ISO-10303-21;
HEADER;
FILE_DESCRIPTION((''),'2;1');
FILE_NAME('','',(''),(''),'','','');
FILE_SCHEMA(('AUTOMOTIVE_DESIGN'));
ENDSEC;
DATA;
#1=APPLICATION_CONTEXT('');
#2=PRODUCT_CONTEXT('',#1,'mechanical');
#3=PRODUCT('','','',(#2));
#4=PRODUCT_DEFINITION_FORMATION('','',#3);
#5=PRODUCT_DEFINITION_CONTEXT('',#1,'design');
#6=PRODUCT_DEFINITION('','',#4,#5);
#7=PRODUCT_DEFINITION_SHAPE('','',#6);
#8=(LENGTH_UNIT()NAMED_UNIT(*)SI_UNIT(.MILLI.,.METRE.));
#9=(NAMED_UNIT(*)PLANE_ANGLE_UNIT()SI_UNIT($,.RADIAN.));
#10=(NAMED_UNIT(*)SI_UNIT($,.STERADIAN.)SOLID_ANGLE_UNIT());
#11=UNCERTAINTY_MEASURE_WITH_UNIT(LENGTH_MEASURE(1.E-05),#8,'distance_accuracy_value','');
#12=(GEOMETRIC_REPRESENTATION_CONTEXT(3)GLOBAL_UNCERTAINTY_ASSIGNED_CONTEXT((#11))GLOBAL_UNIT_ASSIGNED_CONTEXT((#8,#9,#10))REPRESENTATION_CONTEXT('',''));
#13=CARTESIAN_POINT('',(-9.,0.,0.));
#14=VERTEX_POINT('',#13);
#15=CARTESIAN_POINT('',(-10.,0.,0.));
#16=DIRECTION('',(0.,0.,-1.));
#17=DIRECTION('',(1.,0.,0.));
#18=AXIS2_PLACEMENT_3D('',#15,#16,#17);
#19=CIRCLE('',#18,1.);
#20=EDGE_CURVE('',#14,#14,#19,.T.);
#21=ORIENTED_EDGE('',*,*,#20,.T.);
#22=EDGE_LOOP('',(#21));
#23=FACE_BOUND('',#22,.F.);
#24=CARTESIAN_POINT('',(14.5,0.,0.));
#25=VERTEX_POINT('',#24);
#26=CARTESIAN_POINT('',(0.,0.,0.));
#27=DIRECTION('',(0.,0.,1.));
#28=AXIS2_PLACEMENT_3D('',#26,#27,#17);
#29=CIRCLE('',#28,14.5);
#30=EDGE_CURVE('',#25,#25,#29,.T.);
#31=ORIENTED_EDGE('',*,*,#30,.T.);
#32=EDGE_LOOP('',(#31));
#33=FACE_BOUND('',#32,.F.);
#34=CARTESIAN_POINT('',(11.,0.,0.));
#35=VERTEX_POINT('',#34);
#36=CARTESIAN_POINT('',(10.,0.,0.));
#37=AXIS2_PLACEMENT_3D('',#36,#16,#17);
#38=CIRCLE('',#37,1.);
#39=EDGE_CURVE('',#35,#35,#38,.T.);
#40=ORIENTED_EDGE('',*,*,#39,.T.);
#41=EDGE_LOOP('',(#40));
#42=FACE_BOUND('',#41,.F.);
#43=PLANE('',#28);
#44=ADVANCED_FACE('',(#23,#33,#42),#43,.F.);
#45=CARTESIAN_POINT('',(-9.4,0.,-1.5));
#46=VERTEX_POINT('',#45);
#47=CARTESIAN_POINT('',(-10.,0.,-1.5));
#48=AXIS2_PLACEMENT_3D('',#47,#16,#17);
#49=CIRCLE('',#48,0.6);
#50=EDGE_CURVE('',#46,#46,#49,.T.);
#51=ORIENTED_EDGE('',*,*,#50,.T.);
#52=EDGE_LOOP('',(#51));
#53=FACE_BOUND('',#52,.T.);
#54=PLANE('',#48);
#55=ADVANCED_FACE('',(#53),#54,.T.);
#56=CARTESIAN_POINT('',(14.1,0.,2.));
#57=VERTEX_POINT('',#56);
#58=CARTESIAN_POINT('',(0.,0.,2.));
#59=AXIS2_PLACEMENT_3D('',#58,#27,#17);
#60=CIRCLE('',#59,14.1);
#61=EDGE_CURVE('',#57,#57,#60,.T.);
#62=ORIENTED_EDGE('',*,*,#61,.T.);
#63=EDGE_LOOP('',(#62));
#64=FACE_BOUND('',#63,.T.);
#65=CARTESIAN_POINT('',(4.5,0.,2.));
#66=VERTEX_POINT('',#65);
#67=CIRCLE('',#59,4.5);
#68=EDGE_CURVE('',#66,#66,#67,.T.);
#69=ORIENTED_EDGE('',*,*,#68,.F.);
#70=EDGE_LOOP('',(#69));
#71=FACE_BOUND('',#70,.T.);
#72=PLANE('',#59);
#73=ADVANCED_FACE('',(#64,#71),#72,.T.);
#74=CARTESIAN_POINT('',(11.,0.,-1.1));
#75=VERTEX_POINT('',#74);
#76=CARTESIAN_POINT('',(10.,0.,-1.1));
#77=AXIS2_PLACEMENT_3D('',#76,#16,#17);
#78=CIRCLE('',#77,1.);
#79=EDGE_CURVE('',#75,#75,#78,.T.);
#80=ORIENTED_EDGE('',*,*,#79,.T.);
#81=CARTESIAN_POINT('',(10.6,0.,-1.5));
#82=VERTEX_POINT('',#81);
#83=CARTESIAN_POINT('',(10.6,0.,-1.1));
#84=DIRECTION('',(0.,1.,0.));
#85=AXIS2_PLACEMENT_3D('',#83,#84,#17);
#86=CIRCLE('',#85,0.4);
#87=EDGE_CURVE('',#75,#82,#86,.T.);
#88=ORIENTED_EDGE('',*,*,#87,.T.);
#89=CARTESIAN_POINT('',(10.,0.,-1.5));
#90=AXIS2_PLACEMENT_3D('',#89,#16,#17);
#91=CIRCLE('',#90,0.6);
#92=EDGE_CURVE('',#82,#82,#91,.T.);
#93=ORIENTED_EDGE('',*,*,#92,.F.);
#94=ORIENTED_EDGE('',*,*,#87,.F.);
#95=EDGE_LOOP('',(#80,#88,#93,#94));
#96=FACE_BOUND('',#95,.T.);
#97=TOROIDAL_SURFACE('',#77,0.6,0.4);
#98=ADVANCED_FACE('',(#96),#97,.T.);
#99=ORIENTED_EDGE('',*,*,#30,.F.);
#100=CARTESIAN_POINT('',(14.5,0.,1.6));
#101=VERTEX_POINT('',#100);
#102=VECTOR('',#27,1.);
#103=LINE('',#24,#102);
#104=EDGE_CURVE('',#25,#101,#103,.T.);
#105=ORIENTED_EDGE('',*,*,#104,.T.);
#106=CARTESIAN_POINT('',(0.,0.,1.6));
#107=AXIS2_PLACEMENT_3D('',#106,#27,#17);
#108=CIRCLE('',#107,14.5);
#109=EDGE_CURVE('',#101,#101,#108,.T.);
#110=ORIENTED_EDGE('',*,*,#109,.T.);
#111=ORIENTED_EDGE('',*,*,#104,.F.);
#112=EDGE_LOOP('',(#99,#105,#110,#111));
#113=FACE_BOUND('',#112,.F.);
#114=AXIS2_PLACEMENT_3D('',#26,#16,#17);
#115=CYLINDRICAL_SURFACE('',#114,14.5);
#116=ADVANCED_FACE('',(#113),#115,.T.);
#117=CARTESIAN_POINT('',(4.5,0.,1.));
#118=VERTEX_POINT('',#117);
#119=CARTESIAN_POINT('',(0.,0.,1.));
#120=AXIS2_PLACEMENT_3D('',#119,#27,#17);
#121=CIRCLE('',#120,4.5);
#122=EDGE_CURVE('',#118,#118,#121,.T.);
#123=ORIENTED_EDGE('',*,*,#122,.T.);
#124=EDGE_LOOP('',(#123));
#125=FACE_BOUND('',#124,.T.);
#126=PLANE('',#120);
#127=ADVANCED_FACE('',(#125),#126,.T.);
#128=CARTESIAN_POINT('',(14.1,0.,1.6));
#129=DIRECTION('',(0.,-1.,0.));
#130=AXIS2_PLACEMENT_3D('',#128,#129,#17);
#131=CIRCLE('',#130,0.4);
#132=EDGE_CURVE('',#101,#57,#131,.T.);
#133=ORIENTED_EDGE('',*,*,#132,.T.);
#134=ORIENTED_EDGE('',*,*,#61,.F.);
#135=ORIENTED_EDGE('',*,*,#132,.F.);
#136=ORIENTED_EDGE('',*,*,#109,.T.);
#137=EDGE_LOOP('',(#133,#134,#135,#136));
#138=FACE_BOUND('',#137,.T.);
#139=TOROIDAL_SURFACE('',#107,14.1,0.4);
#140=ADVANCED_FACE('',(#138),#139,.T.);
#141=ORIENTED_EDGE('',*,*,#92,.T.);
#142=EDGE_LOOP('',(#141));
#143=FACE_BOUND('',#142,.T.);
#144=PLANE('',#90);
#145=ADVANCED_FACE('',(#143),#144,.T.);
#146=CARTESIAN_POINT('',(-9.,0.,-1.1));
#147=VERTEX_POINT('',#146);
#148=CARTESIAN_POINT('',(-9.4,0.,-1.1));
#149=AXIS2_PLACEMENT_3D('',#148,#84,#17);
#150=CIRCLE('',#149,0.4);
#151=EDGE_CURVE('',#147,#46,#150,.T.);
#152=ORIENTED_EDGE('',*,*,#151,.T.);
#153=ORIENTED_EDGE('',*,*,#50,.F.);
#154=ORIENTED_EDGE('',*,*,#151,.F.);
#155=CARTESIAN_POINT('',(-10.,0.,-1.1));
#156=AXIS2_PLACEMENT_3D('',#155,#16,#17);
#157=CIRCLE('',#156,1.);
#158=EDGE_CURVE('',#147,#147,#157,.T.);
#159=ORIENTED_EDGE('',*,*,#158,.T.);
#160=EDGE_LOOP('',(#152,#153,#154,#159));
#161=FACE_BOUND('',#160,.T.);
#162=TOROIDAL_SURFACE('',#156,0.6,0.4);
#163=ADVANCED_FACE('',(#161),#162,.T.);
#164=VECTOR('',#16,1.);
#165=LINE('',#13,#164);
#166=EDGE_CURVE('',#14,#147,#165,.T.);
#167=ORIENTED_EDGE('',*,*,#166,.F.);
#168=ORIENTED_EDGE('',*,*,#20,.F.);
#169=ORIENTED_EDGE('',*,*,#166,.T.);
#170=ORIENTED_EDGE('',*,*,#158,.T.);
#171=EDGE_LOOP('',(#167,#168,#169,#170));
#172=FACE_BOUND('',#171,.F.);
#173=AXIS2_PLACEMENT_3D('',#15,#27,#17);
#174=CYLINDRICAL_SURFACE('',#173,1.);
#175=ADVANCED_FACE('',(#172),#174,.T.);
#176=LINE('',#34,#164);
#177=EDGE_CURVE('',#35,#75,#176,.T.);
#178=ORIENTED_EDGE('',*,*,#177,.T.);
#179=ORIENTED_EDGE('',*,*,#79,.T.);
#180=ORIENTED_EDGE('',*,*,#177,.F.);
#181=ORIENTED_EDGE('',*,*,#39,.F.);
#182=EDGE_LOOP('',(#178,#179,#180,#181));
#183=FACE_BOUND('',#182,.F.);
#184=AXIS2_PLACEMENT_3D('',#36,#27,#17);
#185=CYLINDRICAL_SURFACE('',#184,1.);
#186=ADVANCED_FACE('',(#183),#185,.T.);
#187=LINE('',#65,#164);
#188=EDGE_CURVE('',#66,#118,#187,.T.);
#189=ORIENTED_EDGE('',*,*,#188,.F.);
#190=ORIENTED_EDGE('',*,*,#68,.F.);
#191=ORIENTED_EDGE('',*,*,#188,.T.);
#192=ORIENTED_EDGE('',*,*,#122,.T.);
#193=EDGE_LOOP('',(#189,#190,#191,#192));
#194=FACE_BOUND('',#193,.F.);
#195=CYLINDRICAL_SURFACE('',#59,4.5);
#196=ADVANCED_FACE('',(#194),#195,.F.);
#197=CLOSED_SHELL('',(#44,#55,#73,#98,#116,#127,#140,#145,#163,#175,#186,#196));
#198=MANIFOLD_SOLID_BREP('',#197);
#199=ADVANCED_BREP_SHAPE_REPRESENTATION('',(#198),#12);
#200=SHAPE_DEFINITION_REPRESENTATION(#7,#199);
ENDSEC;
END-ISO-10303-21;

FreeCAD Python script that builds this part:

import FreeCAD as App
import Part
import Sketcher
from FreeCAD import Vector


def edges_at(feature, points):
    """Names of the edges that pass closest to the given points."""
    edges = feature.Shape.Edges
    near = lambda p: min(range(len(edges)), key=lambda i: edges[i].distToShape(Part.Vertex(*p))[0])
    return sorted({f"Edge{near(p) + 1}" for p in points})

doc = App.newDocument("Part")
params = doc.addObject("Spreadsheet::Sheet", "Params")
for row, (alias, value) in enumerate([
    ("sketch1_diameter", "29 mm"),
    ("pad1_length", "2 mm"),
    ("fillet_radius", "0.4 mm"),
    ("sketch2_diameter", "2 mm"),
    ("pad2_length", "1.5 mm"),
    ("fillet2_radius", "0.4 mm"),
    ("sketch3_diameter", "9 mm"),
    ("pocket1_length", "1 mm"),
], start=1):
    params.set(f"A{row}", alias)
    params.set(f"B{row}", "=" + value)
    params.setAlias(f"B{row}", alias)

body = doc.addObject("PartDesign::Body", "Body")

# Sketch on XY plane
sketch1 = body.newObject("Sketcher::SketchObject", "Sketch")
sketch1.AttachmentSupport = (doc.getObject("XY_Plane"), [""])
sketch1.MapMode = "FlatFace"
sketch1.addGeometry(Part.Circle(Vector(0, 0, 0), Vector(0, 0, 1), 14), False)
sketch1.addConstraint([
    Sketcher.Constraint("Coincident", 0, 3, -1, 1),
    Sketcher.Constraint("Diameter", 0, 29.0),
])
sketch1.setExpression("Constraints[1]", "Params.sketch1_diameter")
pad1 = body.newObject("PartDesign::Pad", "Pad")
pad1.Profile = sketch1
pad1.setExpression("Length", "Params.pad1_length")
doc.recompute()

fillet = body.newObject("PartDesign::Fillet", "Fillet")
fillet.Base = (pad1, edges_at(pad1, [(-14.5, 0, 2)]))
fillet.setExpression("Radius", "Params.fillet_radius")

# Sketch on XY plane
sketch2 = body.newObject("Sketcher::SketchObject", "Sketch001")
sketch2.AttachmentSupport = (doc.getObject("XY_Plane"), [""])
sketch2.MapMode = "FlatFace"
sketch2.addGeometry([
    Part.Circle(Vector(-10, 0, 0), Vector(0, 0, 1), 1),
    Part.Circle(Vector(10, 0, 0), Vector(0, 0, 1), 1),
], False)
sketch2.addConstraint([
    Sketcher.Constraint("Equal", 0, 1),
    Sketcher.Constraint("Symmetric", 0, 3, 1, 3, -1, 1),
    Sketcher.Constraint("PointOnObject", 0, 3, -1),
    Sketcher.Constraint("Diameter", 0, 2.0),
    Sketcher.Constraint("DistanceX", 0, 3, -1, 1, 10.0),
])
sketch2.setExpression("Constraints[3]", "Params.sketch2_diameter")
pad2 = body.newObject("PartDesign::Pad", "Pad001")
pad2.Profile = sketch2
pad2.setExpression("Length", "Params.pad2_length")
pad2.Reversed = True
doc.recompute()

fillet2 = body.newObject("PartDesign::Fillet", "Fillet001")
fillet2.Base = (pad2, edges_at(pad2, [(-11, 0, -1.5), (9, 0, -1.5)]))
fillet2.setExpression("Radius", "Params.fillet2_radius")

# Sketch on XY plane
sketch3 = body.newObject("Sketcher::SketchObject", "Sketch002")
sketch3.AttachmentSupport = (doc.getObject("XY_Plane"), [""])
sketch3.MapMode = "FlatFace"
sketch3.AttachmentOffset = App.Placement(Vector(0, 0, 2), App.Rotation())
sketch3.addGeometry(Part.Circle(Vector(0, 0, 0), Vector(0, 0, 1), 4.5), False)
sketch3.addConstraint([
    Sketcher.Constraint("Coincident", 0, 3, -1, 1),
    Sketcher.Constraint("Diameter", 0, 9.0),
])
sketch3.setExpression("Constraints[1]", "Params.sketch3_diameter")
pocket1 = body.newObject("PartDesign::Pocket", "Pocket")
pocket1.Profile = sketch3
pocket1.setExpression("Length", "Params.pocket1_length")

doc.recompute()
